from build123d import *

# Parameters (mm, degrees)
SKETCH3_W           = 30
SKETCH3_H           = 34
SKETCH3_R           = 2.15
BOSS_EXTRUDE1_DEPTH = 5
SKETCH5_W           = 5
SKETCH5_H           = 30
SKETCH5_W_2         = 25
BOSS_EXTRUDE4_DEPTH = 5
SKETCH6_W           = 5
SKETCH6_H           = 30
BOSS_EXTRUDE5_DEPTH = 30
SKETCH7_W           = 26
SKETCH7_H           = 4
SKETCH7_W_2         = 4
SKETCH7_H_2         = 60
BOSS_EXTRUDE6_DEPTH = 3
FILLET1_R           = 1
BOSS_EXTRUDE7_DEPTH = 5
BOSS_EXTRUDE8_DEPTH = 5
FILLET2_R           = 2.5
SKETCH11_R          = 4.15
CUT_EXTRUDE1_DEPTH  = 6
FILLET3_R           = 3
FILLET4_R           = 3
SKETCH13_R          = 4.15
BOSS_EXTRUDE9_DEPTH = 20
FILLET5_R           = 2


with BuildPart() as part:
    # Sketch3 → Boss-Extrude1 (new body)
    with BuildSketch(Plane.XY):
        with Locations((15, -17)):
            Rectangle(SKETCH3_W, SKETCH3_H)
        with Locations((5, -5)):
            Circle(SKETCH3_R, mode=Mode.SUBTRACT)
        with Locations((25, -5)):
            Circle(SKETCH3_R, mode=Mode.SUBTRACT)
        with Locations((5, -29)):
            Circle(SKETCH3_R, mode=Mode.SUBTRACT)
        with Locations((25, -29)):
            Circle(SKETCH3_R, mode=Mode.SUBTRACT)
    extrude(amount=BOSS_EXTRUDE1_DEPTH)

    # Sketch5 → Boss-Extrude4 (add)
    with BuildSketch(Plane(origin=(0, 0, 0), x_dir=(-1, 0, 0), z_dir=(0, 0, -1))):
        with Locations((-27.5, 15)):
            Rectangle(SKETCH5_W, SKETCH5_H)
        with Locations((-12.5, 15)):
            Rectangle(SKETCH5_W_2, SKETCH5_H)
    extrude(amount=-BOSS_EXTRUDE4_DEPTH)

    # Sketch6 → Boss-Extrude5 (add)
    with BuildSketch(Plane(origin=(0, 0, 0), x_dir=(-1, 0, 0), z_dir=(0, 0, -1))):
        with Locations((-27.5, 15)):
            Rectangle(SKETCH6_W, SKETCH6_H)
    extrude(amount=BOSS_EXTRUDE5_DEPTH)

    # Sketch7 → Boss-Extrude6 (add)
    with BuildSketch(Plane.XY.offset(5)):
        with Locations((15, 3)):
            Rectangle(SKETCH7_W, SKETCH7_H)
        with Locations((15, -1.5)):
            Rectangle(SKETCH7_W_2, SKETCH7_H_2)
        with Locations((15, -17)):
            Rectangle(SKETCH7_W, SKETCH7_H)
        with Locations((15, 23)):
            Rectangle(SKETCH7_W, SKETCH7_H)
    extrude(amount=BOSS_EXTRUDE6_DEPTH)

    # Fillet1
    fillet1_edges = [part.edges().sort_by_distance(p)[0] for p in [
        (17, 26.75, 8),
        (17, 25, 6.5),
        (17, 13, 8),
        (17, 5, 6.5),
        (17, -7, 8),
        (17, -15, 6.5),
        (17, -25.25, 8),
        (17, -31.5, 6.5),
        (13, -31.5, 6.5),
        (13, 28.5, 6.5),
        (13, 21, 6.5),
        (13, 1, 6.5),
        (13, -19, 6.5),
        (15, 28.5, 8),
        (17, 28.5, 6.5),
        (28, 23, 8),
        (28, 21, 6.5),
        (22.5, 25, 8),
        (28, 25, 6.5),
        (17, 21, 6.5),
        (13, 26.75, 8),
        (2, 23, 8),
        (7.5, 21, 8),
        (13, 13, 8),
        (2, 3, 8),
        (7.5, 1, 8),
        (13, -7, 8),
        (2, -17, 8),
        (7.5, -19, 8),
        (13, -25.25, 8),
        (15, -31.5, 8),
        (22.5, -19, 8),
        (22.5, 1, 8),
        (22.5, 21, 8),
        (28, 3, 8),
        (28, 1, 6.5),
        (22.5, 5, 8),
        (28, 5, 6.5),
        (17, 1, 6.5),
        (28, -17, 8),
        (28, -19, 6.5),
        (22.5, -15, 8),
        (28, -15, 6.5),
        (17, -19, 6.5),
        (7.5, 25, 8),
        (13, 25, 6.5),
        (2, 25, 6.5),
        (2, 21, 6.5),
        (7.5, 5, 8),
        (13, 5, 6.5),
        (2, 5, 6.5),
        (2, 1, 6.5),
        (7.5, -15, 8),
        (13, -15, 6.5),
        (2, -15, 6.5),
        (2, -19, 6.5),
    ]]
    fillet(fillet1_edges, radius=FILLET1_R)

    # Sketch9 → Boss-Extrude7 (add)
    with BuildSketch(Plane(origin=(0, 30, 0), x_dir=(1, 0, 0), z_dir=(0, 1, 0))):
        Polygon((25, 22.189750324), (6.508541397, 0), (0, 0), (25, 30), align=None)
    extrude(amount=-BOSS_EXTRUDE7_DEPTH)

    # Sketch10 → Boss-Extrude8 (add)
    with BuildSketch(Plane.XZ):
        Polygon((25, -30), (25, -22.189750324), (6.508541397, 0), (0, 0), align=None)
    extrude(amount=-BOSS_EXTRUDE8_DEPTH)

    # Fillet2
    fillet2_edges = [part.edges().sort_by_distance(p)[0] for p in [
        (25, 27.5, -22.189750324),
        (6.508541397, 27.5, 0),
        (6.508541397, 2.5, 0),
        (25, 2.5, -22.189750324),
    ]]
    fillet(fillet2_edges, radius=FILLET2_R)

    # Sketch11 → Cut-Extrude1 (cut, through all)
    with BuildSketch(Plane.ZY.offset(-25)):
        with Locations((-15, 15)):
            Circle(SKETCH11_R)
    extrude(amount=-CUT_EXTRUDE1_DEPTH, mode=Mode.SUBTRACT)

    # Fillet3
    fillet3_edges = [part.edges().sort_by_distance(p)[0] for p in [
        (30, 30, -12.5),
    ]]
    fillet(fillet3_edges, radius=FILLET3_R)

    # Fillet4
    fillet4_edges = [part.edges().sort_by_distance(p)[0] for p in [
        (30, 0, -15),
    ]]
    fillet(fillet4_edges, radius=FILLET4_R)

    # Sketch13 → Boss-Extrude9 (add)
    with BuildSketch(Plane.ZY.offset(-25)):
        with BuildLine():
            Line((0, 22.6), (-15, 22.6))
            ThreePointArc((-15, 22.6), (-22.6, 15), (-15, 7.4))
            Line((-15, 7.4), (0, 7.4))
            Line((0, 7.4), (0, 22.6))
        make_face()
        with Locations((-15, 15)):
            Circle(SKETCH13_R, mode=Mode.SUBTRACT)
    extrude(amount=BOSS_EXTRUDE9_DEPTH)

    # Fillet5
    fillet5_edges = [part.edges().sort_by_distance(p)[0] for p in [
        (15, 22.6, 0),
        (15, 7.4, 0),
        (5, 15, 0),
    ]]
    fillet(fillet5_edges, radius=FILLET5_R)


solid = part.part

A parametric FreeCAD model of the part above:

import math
import FreeCAD as App
import Part
import Sketcher
Q = App.Units.Quantity


def edges_at(feature, points):
    """Names of the edges that pass closest to the given points."""
    edges = feature.Shape.Edges
    near = lambda p: min(range(len(edges)), key=lambda i: edges[i].distToShape(Part.Vertex(*p))[0])
    return sorted({f"Edge{near(p) + 1}" for p in points})


def add_polygon(sketch, points):
    """Adds a closed chain of lines whose ends are joined by coincident constraints."""
    first, n = sketch.GeometryCount, len(points)
    for a, b in zip(points, points[1:] + points[:1]):
        sketch.addGeometry(Part.LineSegment(App.Vector(*a, 0), App.Vector(*b, 0)), False)
    for i in range(n):
        sketch.addConstraint(Sketcher.Constraint("Coincident", first + i, 2, first + (i + 1) % n, 1))

doc = App.newDocument("Part")
body = doc.addObject("PartDesign::Body", "Body")

# Sketch on XY plane
sketch1 = body.newObject("Sketcher::SketchObject", "Sketch")
sketch1.AttachmentSupport = (doc.getObject("XY_Plane"), [""])
sketch1.MapMode = "FlatFace"
add_polygon(sketch1, [(0, 0), (0, -34), (30, -34), (30, 0)])  # lines 0-3
sketch1.addGeometry(Part.Circle(App.Vector(5, -29, 0), App.Vector(0, 0, 1), 2.15), False)  # 4
sketch1.addGeometry(Part.Circle(App.Vector(25, -29, 0), App.Vector(0, 0, 1), 2.15), False)  # 5
sketch1.addGeometry(Part.Circle(App.Vector(5, -5, 0), App.Vector(0, 0, 1), 2.15), False)  # 6
sketch1.addGeometry(Part.Circle(App.Vector(25, -5, 0), App.Vector(0, 0, 1), 2.15), False)  # 7
sketch1.addConstraint([
    Sketcher.Constraint("Vertical", 0),
    Sketcher.Constraint("Horizontal", 1),
    Sketcher.Constraint("Vertical", 2),
    Sketcher.Constraint("Horizontal", 3),
    Sketcher.Constraint("Coincident", 3, 2, -1, 1),
    Sketcher.Constraint("Equal", 4, 5),
    Sketcher.Constraint("Equal", 5, 6),
    Sketcher.Constraint("Equal", 6, 7),
    Sketcher.Constraint("Horizontal", 4, 3, 5, 3),
    Sketcher.Constraint("Horizontal", 6, 3, 7, 3),
    Sketcher.Constraint("Vertical", 4, 3, 6, 3),
    Sketcher.Constraint("Vertical", 5, 3, 7, 3),
    Sketcher.Constraint("Diameter", 4, Q("4.3 mm")),
    Sketcher.Constraint("DistanceX", 1, 1, 1, 2, Q("30 mm")),
    Sketcher.Constraint("DistanceY", 0, 2, 0, 1, Q("34 mm")),
    Sketcher.Constraint("DistanceX", -1, 1, 4, 3, Q("5 mm")),
    Sketcher.Constraint("DistanceY", 4, 3, -1, 1, Q("29 mm")),
    Sketcher.Constraint("DistanceX", -1, 1, 5, 3, Q("25 mm")),
    Sketcher.Constraint("DistanceY", 6, 3, -1, 1, Q("5 mm")),
])
pad1 = body.newObject("PartDesign::Pad", "Pad")
pad1.Profile = sketch1
pad1.Length = 5

# Sketch on XY plane
sketch2 = body.newObject("Sketcher::SketchObject", "Sketch001")
sketch2.AttachmentSupport = (doc.getObject("XY_Plane"), [""])
sketch2.MapMode = "FlatFace"
add_polygon(sketch2, [(30, 30), (30, 0), (0, 0), (0, 30)])  # lines 0-3
sketch2.addConstraint([
    Sketcher.Constraint("Vertical", 0),
    Sketcher.Constraint("Horizontal", 1),
    Sketcher.Constraint("Vertical", 2),
    Sketcher.Constraint("Horizontal", 3),
    Sketcher.Constraint("Coincident", 1, 2, -1, 1),
    Sketcher.Constraint("Equal", 3, 0),
    Sketcher.Constraint("DistanceX", 1, 2, 1, 1, Q("30 mm")),
])
pad2 = body.newObject("PartDesign::Pad", "Pad001")
pad2.Profile = sketch2
pad2.Length = 5

# Sketch on XY plane
sketch3 = body.newObject("Sketcher::SketchObject", "Sketch002")
sketch3.AttachmentSupport = (doc.getObject("XY_Plane"), [""])
sketch3.MapMode = "FlatFace"
add_polygon(sketch3, [(30, 30), (30, 0), (25, 0), (25, 30)])  # lines 0-3
sketch3.addConstraint([
    Sketcher.Constraint("Vertical", 0),
    Sketcher.Constraint("Horizontal", 1),
    Sketcher.Constraint("Vertical", 2),
    Sketcher.Constraint("Horizontal", 3),
    Sketcher.Constraint("PointOnObject", 0, 2, -1),
    Sketcher.Constraint("DistanceX", 1, 2, 1, 1, Q("5 mm")),
    Sketcher.Constraint("DistanceY", 0, 2, 0, 1, Q("30 mm")),
    Sketcher.Constraint("DistanceX", -1, 1, 0, 2, Q("30 mm")),
])
pad3 = body.newObject("PartDesign::Pad", "Pad002")
pad3.Profile = sketch3
pad3.Length = 30
pad3.Reversed = True

# Sketch on XY plane
sketch4 = body.newObject("Sketcher::SketchObject", "Sketch003")
sketch4.AttachmentSupport = (doc.getObject("XY_Plane"), [""])
sketch4.MapMode = "FlatFace"
sketch4.AttachmentOffset = App.Placement(App.Vector(0, 0, 5), App.Rotation())
add_polygon(sketch4, [(2, 5), (2, 1), (13, 1), (13, -15), (2, -15), (2, -19), (13, -19), (13, -31.5), (17, -31.5), (17, -19), (28, -19), (28, -15), (17, -15), (17, 1), (28, 1), (28, 5), (17, 5), (17, 21), (28, 21), (28, 25), (17, 25), (17, 28.5), (13, 28.5), (13, 25), (2, 25), (2, 21), (13, 21), (13, 5)])  # lines 0-27
sketch4.addConstraint([
    Sketcher.Constraint("Vertical", 0),
    Sketcher.Constraint("Horizontal", 1),
    Sketcher.Constraint("Vertical", 2),
    Sketcher.Constraint("Horizontal", 3),
    Sketcher.Constraint("Vertical", 4),
    Sketcher.Constraint("Horizontal", 5),
    Sketcher.Constraint("Vertical", 6),
    Sketcher.Constraint("Horizontal", 7),
    Sketcher.Constraint("Vertical", 8),
    Sketcher.Constraint("Horizontal", 9),
    Sketcher.Constraint("Vertical", 10),
    Sketcher.Constraint("Horizontal", 11),
    Sketcher.Constraint("Vertical", 12),
    Sketcher.Constraint("Horizontal", 13),
    Sketcher.Constraint("Vertical", 14),
    Sketcher.Constraint("Horizontal", 15),
    Sketcher.Constraint("Vertical", 16),
    Sketcher.Constraint("Horizontal", 17),
    Sketcher.Constraint("Vertical", 18),
    Sketcher.Constraint("Horizontal", 19),
    Sketcher.Constraint("Vertical", 20),
    Sketcher.Constraint("Horizontal", 21),
    Sketcher.Constraint("Vertical", 22),
    Sketcher.Constraint("Horizontal", 23),
    Sketcher.Constraint("Vertical", 24),
    Sketcher.Constraint("Horizontal", 25),
    Sketcher.Constraint("Vertical", 26),
    Sketcher.Constraint("Horizontal", 27),
    Sketcher.Constraint("Horizontal", 5, 2, 8, 2),
    Sketcher.Constraint("Horizontal", 3, 2, 10, 2),
    Sketcher.Constraint("Horizontal", 1, 2, 12, 2),
    Sketcher.Constraint("Horizontal", 19, 2, 22, 2),
    Sketcher.Constraint("Horizontal", 17, 2, 24, 2),
    Sketcher.Constraint("Horizontal", 15, 2, 26, 2),
    Sketcher.Constraint("Vertical", 0, 2, 3, 2),
    Sketcher.Constraint("Vertical", 2, 2, 5, 2),
    Sketcher.Constraint("Vertical", 8, 2, 11, 2),
    Sketcher.Constraint("Vertical", 10, 2, 13, 2),
    Sketcher.Constraint("Vertical", 12, 2, 15, 2),
    Sketcher.Constraint("Vertical", 14, 2, 17, 2),
    Sketcher.Constraint("Vertical", 16, 2, 19, 2),
    Sketcher.Constraint("Vertical", 6, 2, 21, 2),
    Sketcher.Constraint("Vertical", 4, 2, 23, 2),
    Sketcher.Constraint("Vertical", 22, 2, 25, 2),
    Sketcher.Constraint("Equal", 5, 9),
    Sketcher.Constraint("Equal", 21, 0),
    Sketcher.Constraint("Equal", 0, 4),
    Sketcher.Constraint("Equal", 12, 16),
    Sketcher.Constraint("Equal", 14, 18),
    Sketcher.Constraint("DistanceX", 1, 1, 1, 2, Q("11 mm")),
    Sketcher.Constraint("DistanceX", 7, 1, 7, 2, Q("4 mm")),
    Sketcher.Constraint("DistanceY", 2, 2, 2, 1, Q("16 mm")),
    Sketcher.Constraint("DistanceY", 6, 2, 6, 1, Q("12.5 mm")),
    Sketcher.Constraint("DistanceY", 20, 1, 20, 2, Q("3.5 mm")),
    Sketcher.Constraint("DistanceX", -1, 1, 0, 2, Q("2 mm")),
    Sketcher.Constraint("DistanceY", -1, 1, 0, 2, Q("1 mm")),
])
pad4 = body.newObject("PartDesign::Pad", "Pad003")
pad4.Profile = sketch4
pad4.Length = 3
doc.recompute()

fillet = body.newObject("PartDesign::Fillet", "Fillet")
fillet.Base = (pad4, edges_at(pad4, [
    (17, 26.75, 8),
    (17, 25, 6.5),
    (17, 13, 8),
    (17, 5, 6.5),
    (17, -7, 8),
    (17, -15, 6.5),
    (17, -25.25, 8),
    (17, -31.5, 6.5),
    (13, -31.5, 6.5),
    (13, 28.5, 6.5),
    (13, 21, 6.5),
    (13, 1, 6.5),
    (13, -19, 6.5),
    (15, 28.5, 8),
    (17, 28.5, 6.5),
    (28, 23, 8),
    (28, 21, 6.5),
    (22.5, 25, 8),
    (28, 25, 6.5),
    (17, 21, 6.5),
    (13, 26.75, 8),
    (2, 23, 8),
    (7.5, 21, 8),
    (13, 13, 8),
    (2, 3, 8),
    (7.5, 1, 8),
    (13, -7, 8),
    (2, -17, 8),
    (7.5, -19, 8),
    (13, -25.25, 8),
    (15, -31.5, 8),
    (22.5, -19, 8),
    (22.5, 1, 8),
    (22.5, 21, 8),
    (28, 3, 8),
    (28, 1, 6.5),
    (22.5, 5, 8),
    (28, 5, 6.5),
    (17, 1, 6.5),
    (28, -17, 8),
    (28, -19, 6.5),
    (22.5, -15, 8),
    (28, -15, 6.5),
    (17, -19, 6.5),
    (7.5, 25, 8),
    (13, 25, 6.5),
    (2, 25, 6.5),
    (2, 21, 6.5),
    (7.5, 5, 8),
    (13, 5, 6.5),
    (2, 5, 6.5),
    (2, 1, 6.5),
    (7.5, -15, 8),
    (13, -15, 6.5),
    (2, -15, 6.5),
    (2, -19, 6.5),
]))
fillet.Radius = 1

# Sketch on XZ plane
sketch5 = body.newObject("Sketcher::SketchObject", "Sketch004")
sketch5.AttachmentSupport = (doc.getObject("XZ_Plane"), [""])
sketch5.MapMode = "FlatFace"
sketch5.AttachmentOffset = App.Placement(App.Vector(0, 0, -30), App.Rotation())
add_polygon(sketch5, [(6.508541, 0), (25, -22.18975), (25, -30), (0, 0)])  # lines 0-3
sketch5.addConstraint([
    Sketcher.Constraint("Vertical", 1),
    Sketcher.Constraint("Horizontal", 3),
    Sketcher.Constraint("Coincident", 2, 2, -1, 1),
    Sketcher.Constraint("Parallel", 0, 2),
    Sketcher.Constraint("DistanceX", -1, 1, 0, 2, Q("25 mm")),
    Sketcher.Constraint("DistanceY", 1, 2, -1, 1, Q("30 mm")),
    Sketcher.Constraint("DistanceX", 3, 1, 3, 2, Q("6.508541 mm")),
])
pad5 = body.newObject("PartDesign::Pad", "Pad004")
pad5.Profile = sketch5
pad5.Length = 5

# Sketch on XZ plane
sketch6 = body.newObject("Sketcher::SketchObject", "Sketch005")
sketch6.AttachmentSupport = (doc.getObject("XZ_Plane"), [""])
sketch6.MapMode = "FlatFace"
add_polygon(sketch6, [(25, -30), (25, -22.18975), (6.508541, 0), (0, 0)])  # lines 0-3
sketch6.addConstraint([
    Sketcher.Constraint("Vertical", 0),
    Sketcher.Constraint("Horizontal", 2),
    Sketcher.Constraint("Coincident", 2, 2, -1, 1),
    Sketcher.Constraint("Parallel", 1, 3),
    Sketcher.Constraint("DistanceX", -1, 1, 0, 2, Q("25 mm")),
    Sketcher.Constraint("DistanceY", 3, 2, -1, 1, Q("30 mm")),
    Sketcher.Constraint("DistanceX", 2, 2, 2, 1, Q("6.508541 mm")),
])
pad6 = body.newObject("PartDesign::Pad", "Pad005")
pad6.Profile = sketch6
pad6.Length = 5
pad6.Reversed = True
doc.recompute()

fillet2 = body.newObject("PartDesign::Fillet", "Fillet001")
fillet2.Base = (pad6, edges_at(pad6, [
    (25, 27.5, -22.19),
    (6.509, 27.5, 0),
    (6.509, 2.5, 0),
    (25, 2.5, -22.19),
]))
fillet2.Radius = 2.5

# Sketch on YZ plane
sketch7 = body.newObject("Sketcher::SketchObject", "Sketch006")
sketch7.AttachmentSupport = (doc.getObject("YZ_Plane"), [""])
sketch7.MapMode = "FlatFace"
sketch7.AttachmentOffset = App.Placement(App.Vector(0, 0, 25), App.Rotation())
sketch7.addGeometry(Part.Circle(App.Vector(15, -15, 0), App.Vector(0, 0, 1), 4.15), False)
sketch7.addConstraint([
    Sketcher.Constraint("Diameter", 0, Q("8.3 mm")),
    Sketcher.Constraint("DistanceX", -1, 1, 0, 3, Q("15 mm")),
    Sketcher.Constraint("DistanceY", 0, 3, -1, 1, Q("15 mm")),
])
pocket1 = body.newObject("PartDesign::Pocket", "Pocket")
pocket1.Profile = sketch7
pocket1.Type = "ThroughAll"
pocket1.Reversed = True
doc.recompute()

fillet3 = body.newObject("PartDesign::Fillet", "Fillet002")
fillet3.Base = (pocket1, edges_at(pocket1, [(30, 30, -12.5)]))
fillet3.Radius = 3
doc.recompute()

fillet4 = body.newObject("PartDesign::Fillet", "Fillet003")
fillet4.Base = (fillet3, edges_at(fillet3, [(30, 0, -15)]))
fillet4.Radius = 3

# Sketch on YZ plane
sketch8 = body.newObject("Sketcher::SketchObject", "Sketch007")
sketch8.AttachmentSupport = (doc.getObject("YZ_Plane"), [""])
sketch8.MapMode = "FlatFace"
sketch8.AttachmentOffset = App.Placement(App.Vector(0, 0, 25), App.Rotation())
sketch8.addGeometry([
    Part.LineSegment(App.Vector(22.6, 0, 0), App.Vector(22.6, -15, 0)),  # 0
    Part.ArcOfCircle(Part.Circle(App.Vector(15, -15, 0), App.Vector(0, 0, 1), 7.6), math.radians(180), math.radians(360)),  # 1
    Part.LineSegment(App.Vector(7.4, -15, 0), App.Vector(7.4, 0, 0)),  # 2
    Part.LineSegment(App.Vector(7.4, 0, 0), App.Vector(22.6, 0, 0)),  # 3
    Part.Circle(App.Vector(15, -15, 0), App.Vector(0, 0, 1), 4.15),  # 4
], False)
sketch8.addConstraint([
    Sketcher.Constraint("Tangent", 0, 2, 1, 2),
    Sketcher.Constraint("Tangent", 1, 1, 2, 1),
    Sketcher.Constraint("Coincident", 2, 2, 3, 1),
    Sketcher.Constraint("Coincident", 3, 2, 0, 1),
    Sketcher.Constraint("Vertical", 0),
    Sketcher.Constraint("Vertical", 2),
    Sketcher.Constraint("Horizontal", 3),
    Sketcher.Constraint("Coincident", 4, 3, 1, 3),
    Sketcher.Constraint("PointOnObject", 2, 2, -1),
    Sketcher.Constraint("Diameter", 4, Q("8.3 mm")),
    Sketcher.Constraint("Radius", 1, Q("7.6 mm")),
    Sketcher.Constraint("DistanceY", 0, 2, 0, 1, Q("15 mm")),
    Sketcher.Constraint("DistanceX", -1, 1, 1, 3, Q("15 mm")),
])
pad7 = body.newObject("PartDesign::Pad", "Pad006")
pad7.Profile = sketch8
pad7.Length = 20
pad7.Reversed = True
doc.recompute()

fillet5 = body.newObject("PartDesign::Fillet", "Fillet004")
fillet5.Base = (pad7, edges_at(pad7, [(15, 22.6, 0), (15, 7.4, 0), (5, 15, 0)]))
fillet5.Radius = 2

doc.recompute()
